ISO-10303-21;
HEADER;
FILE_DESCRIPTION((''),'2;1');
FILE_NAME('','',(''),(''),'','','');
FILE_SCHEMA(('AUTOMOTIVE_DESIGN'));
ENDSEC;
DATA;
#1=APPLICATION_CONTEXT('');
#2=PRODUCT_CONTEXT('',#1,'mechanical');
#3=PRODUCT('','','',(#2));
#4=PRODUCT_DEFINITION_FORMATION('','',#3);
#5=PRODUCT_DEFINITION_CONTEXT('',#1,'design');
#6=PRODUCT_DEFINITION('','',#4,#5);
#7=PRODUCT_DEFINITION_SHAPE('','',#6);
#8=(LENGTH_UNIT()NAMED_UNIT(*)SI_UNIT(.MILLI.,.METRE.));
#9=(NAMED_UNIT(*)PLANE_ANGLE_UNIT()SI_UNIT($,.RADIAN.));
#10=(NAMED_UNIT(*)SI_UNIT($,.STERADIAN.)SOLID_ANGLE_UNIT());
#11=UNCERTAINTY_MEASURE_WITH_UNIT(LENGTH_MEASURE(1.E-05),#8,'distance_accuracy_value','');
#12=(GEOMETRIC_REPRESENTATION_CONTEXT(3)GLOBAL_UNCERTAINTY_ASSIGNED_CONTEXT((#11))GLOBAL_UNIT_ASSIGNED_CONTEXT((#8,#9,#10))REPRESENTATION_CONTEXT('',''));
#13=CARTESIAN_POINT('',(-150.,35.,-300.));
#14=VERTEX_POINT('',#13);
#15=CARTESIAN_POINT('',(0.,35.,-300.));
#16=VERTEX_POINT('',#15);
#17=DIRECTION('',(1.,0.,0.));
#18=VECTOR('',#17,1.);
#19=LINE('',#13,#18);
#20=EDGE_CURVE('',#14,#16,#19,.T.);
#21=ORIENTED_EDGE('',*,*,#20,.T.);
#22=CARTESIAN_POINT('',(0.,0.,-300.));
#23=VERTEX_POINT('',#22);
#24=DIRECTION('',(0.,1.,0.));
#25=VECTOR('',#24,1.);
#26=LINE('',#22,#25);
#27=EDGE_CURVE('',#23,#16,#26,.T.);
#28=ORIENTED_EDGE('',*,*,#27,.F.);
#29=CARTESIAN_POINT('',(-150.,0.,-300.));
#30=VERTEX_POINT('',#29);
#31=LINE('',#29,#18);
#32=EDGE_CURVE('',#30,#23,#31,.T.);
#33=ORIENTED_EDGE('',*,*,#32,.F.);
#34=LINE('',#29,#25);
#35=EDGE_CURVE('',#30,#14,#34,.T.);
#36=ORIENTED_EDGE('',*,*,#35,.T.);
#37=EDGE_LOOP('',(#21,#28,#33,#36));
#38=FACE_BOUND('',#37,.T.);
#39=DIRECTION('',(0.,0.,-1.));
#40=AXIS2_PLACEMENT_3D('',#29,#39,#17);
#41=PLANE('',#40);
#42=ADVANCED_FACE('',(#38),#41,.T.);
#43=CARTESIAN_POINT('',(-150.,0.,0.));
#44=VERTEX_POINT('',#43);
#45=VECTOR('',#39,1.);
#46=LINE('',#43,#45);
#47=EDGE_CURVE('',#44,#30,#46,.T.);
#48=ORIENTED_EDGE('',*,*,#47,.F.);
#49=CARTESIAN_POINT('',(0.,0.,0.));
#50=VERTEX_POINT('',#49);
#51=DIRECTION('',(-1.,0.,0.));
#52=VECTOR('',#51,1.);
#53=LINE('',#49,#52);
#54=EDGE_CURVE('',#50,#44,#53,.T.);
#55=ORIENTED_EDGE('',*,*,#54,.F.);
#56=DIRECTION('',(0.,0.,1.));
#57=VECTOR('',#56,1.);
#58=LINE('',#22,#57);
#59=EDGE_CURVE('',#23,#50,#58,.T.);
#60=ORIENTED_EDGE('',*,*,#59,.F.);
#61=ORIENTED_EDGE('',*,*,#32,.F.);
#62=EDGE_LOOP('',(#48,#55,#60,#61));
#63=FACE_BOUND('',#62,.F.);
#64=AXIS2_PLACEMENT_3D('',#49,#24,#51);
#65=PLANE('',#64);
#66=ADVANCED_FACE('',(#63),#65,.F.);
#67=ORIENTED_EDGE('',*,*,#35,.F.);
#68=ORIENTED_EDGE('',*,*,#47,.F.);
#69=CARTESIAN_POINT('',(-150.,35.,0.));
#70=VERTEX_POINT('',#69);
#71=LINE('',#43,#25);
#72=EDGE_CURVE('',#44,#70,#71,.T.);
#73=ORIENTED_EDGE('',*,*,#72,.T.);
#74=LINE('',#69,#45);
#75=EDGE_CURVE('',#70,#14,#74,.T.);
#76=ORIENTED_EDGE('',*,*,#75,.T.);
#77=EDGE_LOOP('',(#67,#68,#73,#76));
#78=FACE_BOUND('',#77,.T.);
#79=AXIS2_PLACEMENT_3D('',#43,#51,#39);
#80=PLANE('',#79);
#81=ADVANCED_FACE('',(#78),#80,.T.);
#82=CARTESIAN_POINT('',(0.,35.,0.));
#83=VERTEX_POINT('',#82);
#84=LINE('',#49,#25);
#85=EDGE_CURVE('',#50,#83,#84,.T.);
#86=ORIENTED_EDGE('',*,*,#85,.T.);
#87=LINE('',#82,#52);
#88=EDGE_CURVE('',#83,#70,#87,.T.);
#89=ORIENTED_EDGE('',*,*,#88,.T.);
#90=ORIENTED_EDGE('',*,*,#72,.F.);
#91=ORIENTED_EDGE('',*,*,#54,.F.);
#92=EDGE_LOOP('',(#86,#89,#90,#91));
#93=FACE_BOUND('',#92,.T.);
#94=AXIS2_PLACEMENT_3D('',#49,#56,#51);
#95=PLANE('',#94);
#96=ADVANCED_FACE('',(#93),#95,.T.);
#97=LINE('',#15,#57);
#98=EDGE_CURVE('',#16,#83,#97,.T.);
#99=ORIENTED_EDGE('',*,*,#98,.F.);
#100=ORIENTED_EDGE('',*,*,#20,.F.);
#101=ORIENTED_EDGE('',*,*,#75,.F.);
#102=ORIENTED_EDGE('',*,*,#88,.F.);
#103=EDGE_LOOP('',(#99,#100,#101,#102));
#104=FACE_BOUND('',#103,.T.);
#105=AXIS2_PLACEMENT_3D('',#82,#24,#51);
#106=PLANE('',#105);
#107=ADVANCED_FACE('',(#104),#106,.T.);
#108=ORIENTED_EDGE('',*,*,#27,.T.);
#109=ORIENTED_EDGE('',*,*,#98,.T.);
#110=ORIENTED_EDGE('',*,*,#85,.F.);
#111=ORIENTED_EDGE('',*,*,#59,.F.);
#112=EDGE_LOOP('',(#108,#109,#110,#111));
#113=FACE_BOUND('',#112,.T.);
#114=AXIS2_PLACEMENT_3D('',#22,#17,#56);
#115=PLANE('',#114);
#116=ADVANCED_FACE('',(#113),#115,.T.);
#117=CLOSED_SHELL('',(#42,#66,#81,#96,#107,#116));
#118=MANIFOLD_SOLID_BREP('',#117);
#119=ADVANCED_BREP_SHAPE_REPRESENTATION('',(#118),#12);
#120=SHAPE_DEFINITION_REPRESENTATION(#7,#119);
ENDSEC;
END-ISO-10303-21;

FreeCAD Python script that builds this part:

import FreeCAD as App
import Part
import Sketcher
from FreeCAD import Vector
Q = App.Units.Quantity


def add_polygon(sketch, points):
    """Adds a closed chain of lines whose ends are joined by coincident constraints."""
    first, n = sketch.GeometryCount, len(points)
    for a, b in zip(points, points[1:] + points[:1]):
        sketch.addGeometry(Part.LineSegment(App.Vector(*a, 0), App.Vector(*b, 0)), False)
    for i in range(n):
        sketch.addConstraint(Sketcher.Constraint("Coincident", first + i, 2, first + (i + 1) % n, 1))

doc = App.newDocument("Part")
params = doc.addObject("Spreadsheet::Sheet", "Params")
for row, (alias, value) in enumerate([
    ("sketch1_width", "150 mm"),
    ("sketch1_height", "300 mm"),
    ("pad1_length", "35 mm"),
], start=1):
    params.set(f"A{row}", alias)
    params.set(f"B{row}", "=" + value)
    params.setAlias(f"B{row}", alias)

body = doc.addObject("PartDesign::Body", "Body")

# Sketch on XZ plane
sketch1 = body.newObject("Sketcher::SketchObject", "Sketch")
sketch1.AttachmentSupport = (doc.getObject("XZ_Plane"), [""])
sketch1.MapMode = "FlatFace"
add_polygon(sketch1, [(-150, 0), (0, 0), (0, -300), (-150, -300)])  # lines 0-3
sketch1.addConstraint(Sketcher.Constraint("Horizontal", 0))
sketch1.addConstraint(Sketcher.Constraint("Vertical", 1))
sketch1.addConstraint(Sketcher.Constraint("Horizontal", 2))
sketch1.addConstraint(Sketcher.Constraint("Vertical", 3))
sketch1.addConstraint(Sketcher.Constraint("Coincident", 0, 2, -1, 1))
sketch1.addConstraint(Sketcher.Constraint("DistanceX", 0, 1, 0, 2, Q("150 mm")))
sketch1.addConstraint(Sketcher.Constraint("DistanceY", 1, 2, 1, 1, Q("300 mm")))
sketch1.setExpression("Constraints[9]", "Params.sketch1_width")
sketch1.setExpression("Constraints[10]", "Params.sketch1_height")
pad1 = body.newObject("PartDesign::Pad", "Pad")
pad1.Profile = sketch1
pad1.setExpression("Length", "Params.pad1_length")
pad1.Reversed = True

doc.recompute()
